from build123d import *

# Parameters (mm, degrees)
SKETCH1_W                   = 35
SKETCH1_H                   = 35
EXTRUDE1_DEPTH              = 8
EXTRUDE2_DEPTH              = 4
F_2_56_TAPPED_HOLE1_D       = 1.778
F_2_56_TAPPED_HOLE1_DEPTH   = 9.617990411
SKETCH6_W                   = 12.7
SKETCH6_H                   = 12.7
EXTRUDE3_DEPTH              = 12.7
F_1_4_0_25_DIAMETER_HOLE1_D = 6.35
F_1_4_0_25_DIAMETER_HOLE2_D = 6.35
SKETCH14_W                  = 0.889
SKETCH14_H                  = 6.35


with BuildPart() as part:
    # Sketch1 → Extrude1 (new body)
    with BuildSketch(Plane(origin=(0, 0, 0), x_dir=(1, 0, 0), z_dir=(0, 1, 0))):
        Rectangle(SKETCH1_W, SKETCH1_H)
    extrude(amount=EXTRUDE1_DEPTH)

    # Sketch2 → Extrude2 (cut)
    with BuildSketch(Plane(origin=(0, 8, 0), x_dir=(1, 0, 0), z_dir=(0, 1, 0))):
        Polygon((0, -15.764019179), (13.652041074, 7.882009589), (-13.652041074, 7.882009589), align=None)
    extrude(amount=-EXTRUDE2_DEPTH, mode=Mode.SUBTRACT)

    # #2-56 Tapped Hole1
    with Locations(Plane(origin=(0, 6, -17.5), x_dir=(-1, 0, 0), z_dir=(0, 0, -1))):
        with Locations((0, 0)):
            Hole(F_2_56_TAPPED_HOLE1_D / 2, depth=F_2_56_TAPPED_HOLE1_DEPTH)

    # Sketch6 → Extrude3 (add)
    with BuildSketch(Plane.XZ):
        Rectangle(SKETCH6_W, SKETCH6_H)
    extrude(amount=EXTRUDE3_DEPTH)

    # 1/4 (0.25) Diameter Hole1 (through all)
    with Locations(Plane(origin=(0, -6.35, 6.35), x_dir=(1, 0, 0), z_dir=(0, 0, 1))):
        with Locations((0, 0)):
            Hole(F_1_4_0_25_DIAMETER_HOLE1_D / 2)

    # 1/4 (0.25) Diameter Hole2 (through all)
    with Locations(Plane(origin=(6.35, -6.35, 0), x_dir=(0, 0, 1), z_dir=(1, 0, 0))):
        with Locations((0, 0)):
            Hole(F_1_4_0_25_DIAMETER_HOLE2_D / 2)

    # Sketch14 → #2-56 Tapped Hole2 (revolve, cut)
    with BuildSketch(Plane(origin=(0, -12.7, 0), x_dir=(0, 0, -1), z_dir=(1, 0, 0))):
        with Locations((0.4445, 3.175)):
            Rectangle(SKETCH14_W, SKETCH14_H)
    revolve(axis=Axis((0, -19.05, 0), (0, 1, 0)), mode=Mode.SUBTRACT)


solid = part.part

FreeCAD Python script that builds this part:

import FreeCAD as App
import Part
import Sketcher
Q = App.Units.Quantity


def add_polygon(sketch, points):
    """Adds a closed chain of lines whose ends are joined by coincident constraints."""
    first, n = sketch.GeometryCount, len(points)
    for a, b in zip(points, points[1:] + points[:1]):
        sketch.addGeometry(Part.LineSegment(App.Vector(*a, 0), App.Vector(*b, 0)), False)
    for i in range(n):
        sketch.addConstraint(Sketcher.Constraint("Coincident", first + i, 2, first + (i + 1) % n, 1))

doc = App.newDocument("Part")
body = doc.addObject("PartDesign::Body", "Body")

# Sketch on XZ plane
sketch1 = doc.addObject("Sketcher::SketchObject", "Sketch")
body.addObject(sketch1)
sketch1.AttachmentSupport = (doc.XZ_Plane, [""])
sketch1.MapMode = "FlatFace"
add_polygon(sketch1, [(-18, -18), (-18, 18), (18, 18), (18, -18)])  # lines 0-3
sketch1.addConstraint(Sketcher.Constraint("Vertical", 0))
sketch1.addConstraint(Sketcher.Constraint("Horizontal", 1))
sketch1.addConstraint(Sketcher.Constraint("Vertical", 2))
sketch1.addConstraint(Sketcher.Constraint("Horizontal", 3))
sketch1.addConstraint(Sketcher.Constraint("Symmetric", 0, 2, 2, 2, -1, 1))
sketch1.addConstraint(Sketcher.Constraint("Equal", 3, 0))
sketch1.addConstraint(Sketcher.Constraint("DistanceX", 1, 1, 1, 2, 35.0))
pad1 = doc.addObject("PartDesign::Pad", "Pad")
body.addObject(pad1)
pad1.Profile = sketch1
pad1.Length = 8
pad1.Reversed = True

# Sketch on XZ plane
sketch2 = doc.addObject("Sketcher::SketchObject", "Sketch001")
body.addObject(sketch2)
sketch2.AttachmentSupport = (doc.XZ_Plane, [""])
sketch2.MapMode = "FlatFace"
sketch2.AttachmentOffset = App.Placement(App.Vector(0, 0, -8), App.Rotation())
add_polygon(sketch2, [(0, 16), (14, -8), (-14, -8)])  # lines 0-2
sketch2.addConstraint(Sketcher.Constraint("Horizontal", 1))
sketch2.addConstraint(Sketcher.Constraint("PointOnObject", 2, 2, -2))
sketch2.addConstraint(Sketcher.Constraint("Equal", 0, 2))
sketch2.addConstraint(Sketcher.Constraint("Angle", 0, Q("-60 deg")))
sketch2.addConstraint(Sketcher.Constraint("DistanceX", 1, 2, 1, 1, 27.304082))
sketch2.addConstraint(Sketcher.Constraint("DistanceY", 0, 2, -1, 1, 7.88201))
pocket1 = doc.addObject("PartDesign::Pocket", "Pocket")
body.addObject(pocket1)
pocket1.Profile = sketch2
pocket1.Length = 4
pocket1.Reversed = True

# Sketch on XY plane
sketch3 = doc.addObject("Sketcher::SketchObject", "Sketch002")
body.addObject(sketch3)
sketch3.AttachmentSupport = (doc.XY_Plane, [""])
sketch3.MapMode = "FlatFace"
sketch3.AttachmentOffset = App.Placement(App.Vector(0, 0, -17.5), App.Rotation())
sketch3.addGeometry(Part.Circle(App.Vector(0, 6, 0), App.Vector(0, 0, 1), 0.9), False)
sketch3.addConstraint(Sketcher.Constraint("PointOnObject", 0, 3, -2))
sketch3.addConstraint(Sketcher.Constraint("Diameter", 0, Q("0.07 in")))
sketch3.addConstraint(Sketcher.Constraint("DistanceY", -1, 1, 0, 3, 6.0))
doc.recompute()
hole = doc.addObject("PartDesign::Hole", "Hole")
body.addObject(hole)
hole.Profile = sketch3
hole.ThreadType = "None"
hole.Diameter = Q("0.07 in")
hole.DepthType = "Dimension"
hole.Depth = 9.61799
hole.DrillPoint = "Flat"
hole.Reversed = True

# Sketch on XZ plane
sketch4 = doc.addObject("Sketcher::SketchObject", "Sketch003")
body.addObject(sketch4)
sketch4.AttachmentSupport = (doc.XZ_Plane, [""])
sketch4.MapMode = "FlatFace"
add_polygon(sketch4, [(-6, 6), (-6, -6), (6, -6), (6, 6)])  # lines 0-3
sketch4.addConstraint(Sketcher.Constraint("Vertical", 0))
sketch4.addConstraint(Sketcher.Constraint("Horizontal", 1))
sketch4.addConstraint(Sketcher.Constraint("Vertical", 2))
sketch4.addConstraint(Sketcher.Constraint("Horizontal", 3))
sketch4.addConstraint(Sketcher.Constraint("Symmetric", 0, 2, 2, 2, -1, 1))
sketch4.addConstraint(Sketcher.Constraint("Equal", 3, 0))
sketch4.addConstraint(Sketcher.Constraint("DistanceX", 1, 1, 1, 2, Q("0.5 in")))
pad2 = doc.addObject("PartDesign::Pad", "Pad001")
body.addObject(pad2)
pad2.Profile = sketch4
pad2.Length = Q("0.5 in")

# Sketch on XY plane
sketch5 = doc.addObject("Sketcher::SketchObject", "Sketch004")
body.addObject(sketch5)
sketch5.AttachmentSupport = (doc.XY_Plane, [""])
sketch5.MapMode = "FlatFace"
sketch5.AttachmentOffset = App.Placement(App.Vector(0, 0, 0.25 * 25.4), App.Rotation())
sketch5.addGeometry(Part.Circle(App.Vector(0, -6.3, 0), App.Vector(0, 0, 1), 3.2), False)
sketch5.addConstraint(Sketcher.Constraint("PointOnObject", 0, 3, -2))
sketch5.addConstraint(Sketcher.Constraint("Diameter", 0, Q("0.25 in")))
sketch5.addConstraint(Sketcher.Constraint("DistanceY", 0, 3, -1, 1, Q("0.25 in")))
doc.recompute()
hole2 = doc.addObject("PartDesign::Hole", "Hole001")
body.addObject(hole2)
hole2.Profile = sketch5
hole2.ThreadType = "None"
hole2.Diameter = Q("0.25 in")
hole2.DepthType = "ThroughAll"

# Sketch on YZ plane
sketch6 = doc.addObject("Sketcher::SketchObject", "Sketch005")
body.addObject(sketch6)
sketch6.AttachmentSupport = (doc.YZ_Plane, [""])
sketch6.MapMode = "FlatFace"
sketch6.AttachmentOffset = App.Placement(App.Vector(0, 0, 0.25 * 25.4), App.Rotation())
sketch6.addGeometry(Part.Circle(App.Vector(-6.3, 0, 0), App.Vector(0, 0, 1), 3.2), False)
sketch6.addConstraint(Sketcher.Constraint("PointOnObject", 0, 3, -1))
sketch6.addConstraint(Sketcher.Constraint("Diameter", 0, Q("0.25 in")))
sketch6.addConstraint(Sketcher.Constraint("DistanceX", 0, 3, -1, 1, Q("0.25 in")))
doc.recompute()
hole3 = doc.addObject("PartDesign::Hole", "Hole002")
body.addObject(hole3)
hole3.Profile = sketch6
hole3.ThreadType = "None"
hole3.Diameter = Q("0.25 in")
hole3.DepthType = "ThroughAll"

# Sketch on YZ plane
sketch7 = doc.addObject("Sketcher::SketchObject", "Sketch006")
body.addObject(sketch7)
sketch7.AttachmentSupport = (doc.YZ_Plane, [""])
sketch7.MapMode = "FlatFace"
add_polygon(sketch7, [(-6.3, 0), (-12.7, 0), (-12.7, -0.9), (-6.3, -0.9)])  # lines 0-3
sketch7.addConstraint(Sketcher.Constraint("Horizontal", 0))
sketch7.addConstraint(Sketcher.Constraint("Vertical", 1))
sketch7.addConstraint(Sketcher.Constraint("Horizontal", 2))
sketch7.addConstraint(Sketcher.Constraint("Vertical", 3))
sketch7.addConstraint(Sketcher.Constraint("PointOnObject", 0, 2, -1))
sketch7.addConstraint(Sketcher.Constraint("DistanceX", 0, 2, 0, 1, Q("0.25 in")))
sketch7.addConstraint(Sketcher.Constraint("DistanceX", 0, 2, -1, 1, Q("0.5 in")))
sketch7.addConstraint(Sketcher.Constraint("DistanceY", 1, 2, 1, 1, Q("0.035 in")))
groove = doc.addObject("PartDesign::Groove", "Groove")
body.addObject(groove)
groove.Profile = sketch7
groove.ReferenceAxis = (sketch7, ["H_Axis"])
groove.Angle = 360

doc.recompute()
